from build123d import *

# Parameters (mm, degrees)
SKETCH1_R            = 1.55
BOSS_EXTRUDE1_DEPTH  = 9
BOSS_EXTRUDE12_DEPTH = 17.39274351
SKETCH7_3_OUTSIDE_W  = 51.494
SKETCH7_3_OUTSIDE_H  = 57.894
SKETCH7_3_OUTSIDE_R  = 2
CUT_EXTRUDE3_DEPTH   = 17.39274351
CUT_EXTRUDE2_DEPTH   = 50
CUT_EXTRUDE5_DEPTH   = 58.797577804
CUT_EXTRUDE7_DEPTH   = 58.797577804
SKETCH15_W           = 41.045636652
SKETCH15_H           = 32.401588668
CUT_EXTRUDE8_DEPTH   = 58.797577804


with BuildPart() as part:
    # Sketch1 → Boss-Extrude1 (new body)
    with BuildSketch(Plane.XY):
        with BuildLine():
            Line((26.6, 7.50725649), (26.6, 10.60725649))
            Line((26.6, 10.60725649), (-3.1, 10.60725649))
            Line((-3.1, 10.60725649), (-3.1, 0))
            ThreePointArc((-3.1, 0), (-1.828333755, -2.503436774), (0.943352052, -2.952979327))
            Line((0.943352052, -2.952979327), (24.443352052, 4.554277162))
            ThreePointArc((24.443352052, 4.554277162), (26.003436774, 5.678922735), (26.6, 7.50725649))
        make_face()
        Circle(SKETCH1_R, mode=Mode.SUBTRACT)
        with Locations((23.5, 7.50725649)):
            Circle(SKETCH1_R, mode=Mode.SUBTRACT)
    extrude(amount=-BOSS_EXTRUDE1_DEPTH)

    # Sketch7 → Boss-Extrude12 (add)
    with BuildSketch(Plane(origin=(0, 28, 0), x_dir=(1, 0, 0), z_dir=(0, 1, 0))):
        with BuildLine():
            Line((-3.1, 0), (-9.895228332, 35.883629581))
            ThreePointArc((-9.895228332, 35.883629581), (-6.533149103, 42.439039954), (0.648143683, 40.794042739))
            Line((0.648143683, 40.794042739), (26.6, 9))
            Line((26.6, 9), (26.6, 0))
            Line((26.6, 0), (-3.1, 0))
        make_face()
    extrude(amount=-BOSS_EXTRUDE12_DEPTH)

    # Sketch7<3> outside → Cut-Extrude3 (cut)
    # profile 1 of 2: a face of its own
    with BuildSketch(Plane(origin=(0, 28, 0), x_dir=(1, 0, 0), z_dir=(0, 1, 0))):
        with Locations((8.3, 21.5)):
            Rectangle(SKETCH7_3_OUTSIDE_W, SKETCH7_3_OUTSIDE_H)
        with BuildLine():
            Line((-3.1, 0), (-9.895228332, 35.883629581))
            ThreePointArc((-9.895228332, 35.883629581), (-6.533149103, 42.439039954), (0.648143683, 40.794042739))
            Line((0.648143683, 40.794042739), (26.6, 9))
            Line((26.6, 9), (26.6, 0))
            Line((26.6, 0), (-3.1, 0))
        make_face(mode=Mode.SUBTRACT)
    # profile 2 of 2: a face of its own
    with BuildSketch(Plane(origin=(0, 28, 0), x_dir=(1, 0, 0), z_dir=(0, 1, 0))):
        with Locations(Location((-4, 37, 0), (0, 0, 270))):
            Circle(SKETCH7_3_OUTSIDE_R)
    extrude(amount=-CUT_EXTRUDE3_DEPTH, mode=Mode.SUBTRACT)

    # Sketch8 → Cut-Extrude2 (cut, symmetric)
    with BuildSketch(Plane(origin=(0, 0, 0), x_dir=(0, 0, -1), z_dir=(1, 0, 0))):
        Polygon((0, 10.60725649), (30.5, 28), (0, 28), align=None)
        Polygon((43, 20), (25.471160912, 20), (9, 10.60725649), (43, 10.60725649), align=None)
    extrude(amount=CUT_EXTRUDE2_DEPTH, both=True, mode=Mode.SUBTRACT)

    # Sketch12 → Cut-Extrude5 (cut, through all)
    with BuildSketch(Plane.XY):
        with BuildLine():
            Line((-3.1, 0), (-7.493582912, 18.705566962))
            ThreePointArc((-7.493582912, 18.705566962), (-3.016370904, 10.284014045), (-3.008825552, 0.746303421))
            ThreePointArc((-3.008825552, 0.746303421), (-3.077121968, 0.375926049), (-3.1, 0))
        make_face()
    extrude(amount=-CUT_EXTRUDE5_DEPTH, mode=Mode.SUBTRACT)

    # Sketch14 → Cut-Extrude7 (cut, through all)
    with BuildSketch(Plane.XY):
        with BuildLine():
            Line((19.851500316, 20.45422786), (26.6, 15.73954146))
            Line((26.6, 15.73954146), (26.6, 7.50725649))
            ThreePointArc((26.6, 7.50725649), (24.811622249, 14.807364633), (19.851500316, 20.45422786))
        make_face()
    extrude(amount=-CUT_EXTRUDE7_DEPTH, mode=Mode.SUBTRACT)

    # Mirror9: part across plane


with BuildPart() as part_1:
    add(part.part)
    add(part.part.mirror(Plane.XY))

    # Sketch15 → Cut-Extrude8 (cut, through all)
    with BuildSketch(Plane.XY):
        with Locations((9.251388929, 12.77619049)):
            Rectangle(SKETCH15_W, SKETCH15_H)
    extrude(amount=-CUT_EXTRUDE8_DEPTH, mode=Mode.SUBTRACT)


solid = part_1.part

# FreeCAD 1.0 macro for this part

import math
import FreeCAD as App
import Part
import Sketcher

V = App.Vector
Q = App.Units.Quantity

doc = App.newDocument("Part")
body = doc.addObject("PartDesign::Body", "Body")

# Sketch on XY plane
sketch1 = body.newObject("Sketcher::SketchObject", "Sketch")
sketch1.AttachmentSupport = (doc.getObject("XY_Plane"), [""])
sketch1.MapMode = "FlatFace"
sketch1.addGeometry(Part.LineSegment(V(26.6, 7.5, 0), V(26.6, 10.6, 0)), False)
sketch1.addGeometry(Part.LineSegment(V(26.6, 10.6, 0), V(-3.1, 10.6, 0)), False)
sketch1.addGeometry(Part.LineSegment(V(-3.1, 10.6, 0), V(-3.1, 0, 0)), False)
sketch1.addGeometry(Part.ArcOfCircle(Part.Circle(V(0, 0, 0), V(0, 0, 1), 3.1), math.radians(180), math.radians(288)), False)
sketch1.addGeometry(Part.LineSegment(V(0.9, -3, 0), V(24.4, 4.6, 0)), False)
sketch1.addGeometry(Part.ArcOfCircle(Part.Circle(V(23.5, 7.5, 0), V(0, 0, 1), 3.1), math.radians(-72), math.radians(0)), False)
sketch1.addGeometry(Part.Circle(V(0, 0, 0), V(0, 0, 1), 1.6), False)
sketch1.addGeometry(Part.Circle(V(23.5, 7.5, 0), V(0, 0, 1), 1.6), False)
sketch1.addConstraint(Sketcher.Constraint("Coincident", 0, 2, 1, 1))
sketch1.addConstraint(Sketcher.Constraint("Coincident", 1, 2, 2, 1))
sketch1.addConstraint(Sketcher.Constraint("Tangent", 2, 2, 3, 1))
sketch1.addConstraint(Sketcher.Constraint("Tangent", 3, 2, 4, 1))
sketch1.addConstraint(Sketcher.Constraint("Tangent", 4, 2, 5, 1))
sketch1.addConstraint(Sketcher.Constraint("Tangent", 5, 2, 0, 1))
sketch1.addConstraint(Sketcher.Constraint("Vertical", 0))
sketch1.addConstraint(Sketcher.Constraint("Horizontal", 1))
sketch1.addConstraint(Sketcher.Constraint("Vertical", 2))
sketch1.addConstraint(Sketcher.Constraint("Coincident", 3, 3, -1, 1))
sketch1.addConstraint(Sketcher.Constraint("Coincident", 6, 3, -1, 1))
sketch1.addConstraint(Sketcher.Constraint("Coincident", 7, 3, 5, 3))
sketch1.addConstraint(Sketcher.Constraint("Equal", 3, 5))
sketch1.addConstraint(Sketcher.Constraint("Equal", 6, 7))
sketch1.addConstraint(Sketcher.Constraint("Diameter", 6, Q("3.1 mm")))
sketch1.addConstraint(Sketcher.Constraint("Radius", 3, Q("3.1 mm")))
sketch1.addConstraint(Sketcher.Constraint("DistanceX", 1, 2, 1, 1, Q("29.7 mm")))
sketch1.addConstraint(Sketcher.Constraint("DistanceY", 0, 1, 0, 2, Q("3.1 mm")))
sketch1.addConstraint(Sketcher.Constraint("Distance", 4, Q("24.67 mm")))
pad1 = body.newObject("PartDesign::Pad", "Pad")
pad1.Profile = sketch1
pad1.Length = 9
pad1.Reversed = True

# Sketch on XZ plane
sketch2 = body.newObject("Sketcher::SketchObject", "Sketch001")
sketch2.AttachmentSupport = (doc.getObject("XZ_Plane"), [""])
sketch2.MapMode = "FlatFace"
sketch2.AttachmentOffset = App.Placement(V(0, 0, -28), App.Rotation())
sketch2.addGeometry(Part.LineSegment(V(-10, -36, 0), V(-3, 0, 0)), False)
sketch2.addGeometry(Part.LineSegment(V(-3, 0, 0), V(27, 0, 0)), False)
sketch2.addGeometry(Part.LineSegment(V(27, 0, 0), V(27, -9, 0)), False)
sketch2.addGeometry(Part.LineSegment(V(27, -9, 0), V(1, -41, 0)), False)
sketch2.addGeometry(Part.ArcOfCircle(Part.Circle(V(-4, -37, 0), V(0, 0, 1), 6), math.radians(169), math.radians(321)), False)
sketch2.addConstraint(Sketcher.Constraint("Coincident", 0, 2, 1, 1))
sketch2.addConstraint(Sketcher.Constraint("Coincident", 1, 2, 2, 1))
sketch2.addConstraint(Sketcher.Constraint("Coincident", 2, 2, 3, 1))
sketch2.addConstraint(Sketcher.Constraint("Tangent", 3, 2, 4, 2))
sketch2.addConstraint(Sketcher.Constraint("Tangent", 4, 1, 0, 1))
sketch2.addConstraint(Sketcher.Constraint("Horizontal", 1))
sketch2.addConstraint(Sketcher.Constraint("Vertical", 2))
sketch2.addConstraint(Sketcher.Constraint("PointOnObject", 0, 2, -1))
sketch2.addConstraint(Sketcher.Constraint("Radius", 4, Q("6 mm")))
sketch2.addConstraint(Sketcher.Constraint("DistanceY", 2, 2, 2, 1, Q("9 mm")))
sketch2.addConstraint(Sketcher.Constraint("DistanceX", 1, 1, 1, 2, Q("29.7 mm")))
sketch2.addConstraint(Sketcher.Constraint("DistanceX", 4, 3, -1, 1, Q("4 mm")))
sketch2.addConstraint(Sketcher.Constraint("DistanceY", 4, 3, -1, 1, Q("37 mm")))
sketch2.addConstraint(Sketcher.Constraint("DistanceX", 0, 2, -1, 1, Q("3.1 mm")))
pad2 = body.newObject("PartDesign::Pad", "Pad001")
pad2.Profile = sketch2
pad2.Length = 17.392744

# Sketch on XZ plane
sketch3 = body.newObject("Sketcher::SketchObject", "Sketch002")
sketch3.AttachmentSupport = (doc.getObject("XZ_Plane"), [""])
sketch3.MapMode = "FlatFace"
sketch3.AttachmentOffset = App.Placement(V(0, 0, -28), App.Rotation())
sketch3.addGeometry(Part.LineSegment(V(-17.4, -50.4, 0), V(-17.4, 7.4, 0)), False)
sketch3.addGeometry(Part.LineSegment(V(-17.4, 7.4, 0), V(34, 7.4, 0)), False)
sketch3.addGeometry(Part.LineSegment(V(34, 7.4, 0), V(34, -50.4, 0)), False)
sketch3.addGeometry(Part.LineSegment(V(34, -50.4, 0), V(-17.4, -50.4, 0)), False)
sketch3.addGeometry(Part.LineSegment(V(26.6, 0, 0), V(-3.1, 0, 0)), False)
sketch3.addGeometry(Part.LineSegment(V(-3.1, 0, 0), V(-9.9, -35.9, 0)), False)
sketch3.addGeometry(Part.ArcOfCircle(Part.Circle(V(-4, -37, 0), V(0, 0, 1), 6), math.radians(169), math.radians(321)), False)
sketch3.addGeometry(Part.LineSegment(V(0.6, -40.8, 0), V(26.6, -9, 0)), False)
sketch3.addGeometry(Part.LineSegment(V(26.6, -9, 0), V(26.6, 0, 0)), False)
sketch3.addGeometry(Part.Circle(V(-4, -37, 0), V(0, 0, 1), 2), False)
sketch3.addConstraint(Sketcher.Constraint("Coincident", 0, 2, 1, 1))
sketch3.addConstraint(Sketcher.Constraint("Coincident", 1, 2, 2, 1))
sketch3.addConstraint(Sketcher.Constraint("Coincident", 2, 2, 3, 1))
sketch3.addConstraint(Sketcher.Constraint("Coincident", 3, 2, 0, 1))
sketch3.addConstraint(Sketcher.Constraint("Coincident", 4, 2, 5, 1))
sketch3.addConstraint(Sketcher.Constraint("Tangent", 5, 2, 6, 1))
sketch3.addConstraint(Sketcher.Constraint("Tangent", 6, 2, 7, 1))
sketch3.addConstraint(Sketcher.Constraint("Coincident", 7, 2, 8, 1))
sketch3.addConstraint(Sketcher.Constraint("Coincident", 8, 2, 4, 1))
sketch3.addConstraint(Sketcher.Constraint("Vertical", 0))
sketch3.addConstraint(Sketcher.Constraint("Horizontal", 1))
sketch3.addConstraint(Sketcher.Constraint("Vertical", 2))
sketch3.addConstraint(Sketcher.Constraint("Horizontal", 3))
sketch3.addConstraint(Sketcher.Constraint("Horizontal", 4))
sketch3.addConstraint(Sketcher.Constraint("Vertical", 8))
sketch3.addConstraint(Sketcher.Constraint("Coincident", 9, 3, 6, 3))
sketch3.addConstraint(Sketcher.Constraint("PointOnObject", 4, 2, -1))
sketch3.addConstraint(Sketcher.Constraint("Diameter", 9, Q("4 mm")))
sketch3.addConstraint(Sketcher.Constraint("Radius", 6, Q("6 mm")))
sketch3.addConstraint(Sketcher.Constraint("DistanceY", 8, 1, 8, 2, Q("9 mm")))
sketch3.addConstraint(Sketcher.Constraint("DistanceX", 4, 2, 4, 1, Q("29.7 mm")))
sketch3.addConstraint(Sketcher.Constraint("DistanceX", 6, 3, -1, 1, Q("4 mm")))
sketch3.addConstraint(Sketcher.Constraint("DistanceY", 6, 3, -1, 1, Q("37 mm")))
sketch3.addConstraint(Sketcher.Constraint("DistanceX", 4, 2, -1, 1, Q("3.1 mm")))
sketch3.addConstraint(Sketcher.Constraint("DistanceX", 1, 1, 1, 2, Q("51.494 mm")))
sketch3.addConstraint(Sketcher.Constraint("DistanceY", 0, 1, 0, 2, Q("57.894 mm")))
sketch3.addConstraint(Sketcher.Constraint("DistanceX", 0, 2, -1, 1, Q("17.447 mm")))
sketch3.addConstraint(Sketcher.Constraint("DistanceY", -1, 1, 0, 2, Q("7.447 mm")))
pocket1 = body.newObject("PartDesign::Pocket", "Pocket")
pocket1.Profile = sketch3
pocket1.Length = 17.392744
pocket1.Reversed = True

# Sketch on YZ plane
sketch4 = body.newObject("Sketcher::SketchObject", "Sketch003")
sketch4.AttachmentSupport = (doc.getObject("YZ_Plane"), [""])
sketch4.MapMode = "FlatFace"
sketch4.addGeometry(Part.LineSegment(V(11, 0, 0), V(28, -30, 0)), False)
sketch4.addGeometry(Part.LineSegment(V(28, -30, 0), V(28, 0, 0)), False)
sketch4.addGeometry(Part.LineSegment(V(28, 0, 0), V(11, 0, 0)), False)
sketch4.addGeometry(Part.LineSegment(V(20, -43, 0), V(20, -25, 0)), False)
sketch4.addGeometry(Part.LineSegment(V(20, -25, 0), V(11, -9, 0)), False)
sketch4.addGeometry(Part.LineSegment(V(11, -9, 0), V(11, -43, 0)), False)
sketch4.addGeometry(Part.LineSegment(V(11, -43, 0), V(20, -43, 0)), False)
sketch4.addConstraint(Sketcher.Constraint("Coincident", 0, 2, 1, 1))
sketch4.addConstraint(Sketcher.Constraint("Coincident", 1, 2, 2, 1))
sketch4.addConstraint(Sketcher.Constraint("Coincident", 2, 2, 0, 1))
sketch4.addConstraint(Sketcher.Constraint("Coincident", 3, 2, 4, 1))
sketch4.addConstraint(Sketcher.Constraint("Coincident", 4, 2, 5, 1))
sketch4.addConstraint(Sketcher.Constraint("Coincident", 5, 2, 6, 1))
sketch4.addConstraint(Sketcher.Constraint("Coincident", 6, 2, 3, 1))
sketch4.addConstraint(Sketcher.Constraint("Vertical", 1))
sketch4.addConstraint(Sketcher.Constraint("Horizontal", 2))
sketch4.addConstraint(Sketcher.Constraint("Vertical", 3))
sketch4.addConstraint(Sketcher.Constraint("Vertical", 5))
sketch4.addConstraint(Sketcher.Constraint("Horizontal", 6))
sketch4.addConstraint(Sketcher.Constraint("PointOnObject", 1, 2, -1))
sketch4.addConstraint(Sketcher.Constraint("Parallel", 0, 4))
sketch4.addConstraint(Sketcher.Constraint("Vertical", 2, 2, 4, 2))
sketch4.addConstraint(Sketcher.Constraint("DistanceY", 5, 2, 5, 1, Q("34 mm")))
sketch4.addConstraint(Sketcher.Constraint("DistanceY", 1, 1, 1, 2, Q("30.5 mm")))
sketch4.addConstraint(Sketcher.Constraint("DistanceX", -1, 1, 0, 2, Q("28 mm")))
sketch4.addConstraint(Sketcher.Constraint("DistanceX", -1, 1, 3, 2, Q("20 mm")))
sketch4.addConstraint(Sketcher.Constraint("DistanceY", 4, 2, -1, 1, Q("9 mm")))
sketch4.addConstraint(Sketcher.Constraint("DistanceY", 3, 1, 3, 2, Q("17.528839 mm")))
pocket2 = body.newObject("PartDesign::Pocket", "Pocket001")
pocket2.Profile = sketch4
pocket2.Length = 100
pocket2.Midplane = True

# Sketch on XY plane
sketch5 = body.newObject("Sketcher::SketchObject", "Sketch004")
sketch5.AttachmentSupport = (doc.getObject("XY_Plane"), [""])
sketch5.MapMode = "FlatFace"
sketch5.addGeometry(Part.LineSegment(V(-7.5, 18.7, 0), V(-3.1, 0, 0)), False)
sketch5.addGeometry(Part.ArcOfCircle(Part.Circle(V(0, 0, 0), V(0, 0, 1), 3.1), math.radians(166.07), math.radians(180)), False)
sketch5.addGeometry(Part.ArcOfCircle(Part.Circle(V(-22.2, 5.5, 0), V(0, 0, 1), 19.7), math.radians(-14), math.radians(42)), False)
sketch5.addConstraint(Sketcher.Constraint("Coincident", 0, 2, 1, 2))
sketch5.addConstraint(Sketcher.Constraint("Tangent", 1, 1, 2, 1))
sketch5.addConstraint(Sketcher.Constraint("Coincident", 2, 2, 0, 1))
sketch5.addConstraint(Sketcher.Constraint("Coincident", 1, 3, -1, 1))
sketch5.addConstraint(Sketcher.Constraint("PointOnObject", 0, 2, -1))
sketch5.addConstraint(Sketcher.Constraint("Radius", 1, Q("3.1 mm")))
sketch5.addConstraint(Sketcher.Constraint("DistanceY", -1, 1, 2, 3, Q("5.5 mm")))
sketch5.addConstraint(Sketcher.Constraint("Radius", 2, Q("19.745936 mm")))
sketch5.addConstraint(Sketcher.Constraint("DistanceX", 2, 3, 2, 2, Q("14.680428 mm")))
pocket3 = body.newObject("PartDesign::Pocket", "Pocket002")
pocket3.Profile = sketch5
pocket3.Type = "ThroughAll"

# Sketch on XY plane
sketch6 = body.newObject("Sketcher::SketchObject", "Sketch005")
sketch6.AttachmentSupport = (doc.getObject("XY_Plane"), [""])
sketch6.MapMode = "FlatFace"
sketch6.addGeometry(Part.LineSegment(V(27, 16, 0), V(20, 20, 0)), False)
sketch6.addGeometry(Part.ArcOfCircle(Part.Circle(V(11, 8, 0), V(0, 0, 1), 16), math.radians(0), math.radians(55)), False)
sketch6.addGeometry(Part.LineSegment(V(27, 8, 0), V(27, 16, 0)), False)
sketch6.addConstraint(Sketcher.Constraint("Tangent", 0, 2, 1, 2))
sketch6.addConstraint(Sketcher.Constraint("Tangent", 1, 1, 2, 1))
sketch6.addConstraint(Sketcher.Constraint("Coincident", 2, 2, 0, 1))
sketch6.addConstraint(Sketcher.Constraint("Vertical", 2))
sketch6.addConstraint(Sketcher.Constraint("DistanceX", -1, 1, 1, 1, Q("26.6 mm")))
sketch6.addConstraint(Sketcher.Constraint("Radius", 1, Q("15.793608 mm")))
sketch6.addConstraint(Sketcher.Constraint("DistanceX", -1, 1, 0, 2, Q("19.8515 mm")))
sketch6.addConstraint(Sketcher.Constraint("DistanceY", -1, 1, 2, 2, Q("15.739541 mm")))
pocket4 = body.newObject("PartDesign::Pocket", "Pocket003")
pocket4.Profile = sketch6
pocket4.Type = "ThroughAll"
body2 = doc.addObject("PartDesign::Body", "Body001")
doc.recompute()

body2.BaseFeature = body
doc.recompute()

mirroring = doc.addObject("Part::Mirroring", "Mirroring")
mirroring.Source = body
mirroring.Base = V(0, 0, 0)
mirroring.Normal = V(0, 0, 1)
body3 = doc.addObject("PartDesign::Body", "Body002")
body3.BaseFeature = mirroring
boolean = body2.newObject("PartDesign::Boolean", "Boolean")
boolean.Type = "Fuse"
boolean.addObjects([body3])
doc.recompute()

# Sketch on XY plane
sketch7 = body2.newObject("Sketcher::SketchObject", "Sketch006")
sketch7.AttachmentSupport = (doc.getObject("XY_Plane001"), [""])
sketch7.MapMode = "FlatFace"
sketch7.addGeometry(Part.LineSegment(V(-11, 29, 0), V(-11, -3, 0)), False)
sketch7.addGeometry(Part.LineSegment(V(-11, -3, 0), V(30, -3, 0)), False)
sketch7.addGeometry(Part.LineSegment(V(30, -3, 0), V(30, 29, 0)), False)
sketch7.addGeometry(Part.LineSegment(V(30, 29, 0), V(-11, 29, 0)), False)
sketch7.addConstraint(Sketcher.Constraint("Coincident", 0, 2, 1, 1))
sketch7.addConstraint(Sketcher.Constraint("Coincident", 1, 2, 2, 1))
sketch7.addConstraint(Sketcher.Constraint("Coincident", 2, 2, 3, 1))
sketch7.addConstraint(Sketcher.Constraint("Coincident", 3, 2, 0, 1))
sketch7.addConstraint(Sketcher.Constraint("Vertical", 0))
sketch7.addConstraint(Sketcher.Constraint("Horizontal", 1))
sketch7.addConstraint(Sketcher.Constraint("Vertical", 2))
sketch7.addConstraint(Sketcher.Constraint("Horizontal", 3))
sketch7.addConstraint(Sketcher.Constraint("DistanceY", 0, 2, 0, 1, Q("32.401589 mm")))
sketch7.addConstraint(Sketcher.Constraint("DistanceX", 1, 1, 1, 2, Q("41.045637 mm")))
sketch7.addConstraint(Sketcher.Constraint("DistanceX", 0, 2, -1, 1, Q("11.271429 mm")))
sketch7.addConstraint(Sketcher.Constraint("DistanceY", 0, 2, -1, 1, Q("3.424604 mm")))
pocket5 = body2.newObject("PartDesign::Pocket", "Pocket004")
pocket5.Profile = sketch7
pocket5.Type = "ThroughAll"
mirroring.Visibility = False

doc.recompute()
